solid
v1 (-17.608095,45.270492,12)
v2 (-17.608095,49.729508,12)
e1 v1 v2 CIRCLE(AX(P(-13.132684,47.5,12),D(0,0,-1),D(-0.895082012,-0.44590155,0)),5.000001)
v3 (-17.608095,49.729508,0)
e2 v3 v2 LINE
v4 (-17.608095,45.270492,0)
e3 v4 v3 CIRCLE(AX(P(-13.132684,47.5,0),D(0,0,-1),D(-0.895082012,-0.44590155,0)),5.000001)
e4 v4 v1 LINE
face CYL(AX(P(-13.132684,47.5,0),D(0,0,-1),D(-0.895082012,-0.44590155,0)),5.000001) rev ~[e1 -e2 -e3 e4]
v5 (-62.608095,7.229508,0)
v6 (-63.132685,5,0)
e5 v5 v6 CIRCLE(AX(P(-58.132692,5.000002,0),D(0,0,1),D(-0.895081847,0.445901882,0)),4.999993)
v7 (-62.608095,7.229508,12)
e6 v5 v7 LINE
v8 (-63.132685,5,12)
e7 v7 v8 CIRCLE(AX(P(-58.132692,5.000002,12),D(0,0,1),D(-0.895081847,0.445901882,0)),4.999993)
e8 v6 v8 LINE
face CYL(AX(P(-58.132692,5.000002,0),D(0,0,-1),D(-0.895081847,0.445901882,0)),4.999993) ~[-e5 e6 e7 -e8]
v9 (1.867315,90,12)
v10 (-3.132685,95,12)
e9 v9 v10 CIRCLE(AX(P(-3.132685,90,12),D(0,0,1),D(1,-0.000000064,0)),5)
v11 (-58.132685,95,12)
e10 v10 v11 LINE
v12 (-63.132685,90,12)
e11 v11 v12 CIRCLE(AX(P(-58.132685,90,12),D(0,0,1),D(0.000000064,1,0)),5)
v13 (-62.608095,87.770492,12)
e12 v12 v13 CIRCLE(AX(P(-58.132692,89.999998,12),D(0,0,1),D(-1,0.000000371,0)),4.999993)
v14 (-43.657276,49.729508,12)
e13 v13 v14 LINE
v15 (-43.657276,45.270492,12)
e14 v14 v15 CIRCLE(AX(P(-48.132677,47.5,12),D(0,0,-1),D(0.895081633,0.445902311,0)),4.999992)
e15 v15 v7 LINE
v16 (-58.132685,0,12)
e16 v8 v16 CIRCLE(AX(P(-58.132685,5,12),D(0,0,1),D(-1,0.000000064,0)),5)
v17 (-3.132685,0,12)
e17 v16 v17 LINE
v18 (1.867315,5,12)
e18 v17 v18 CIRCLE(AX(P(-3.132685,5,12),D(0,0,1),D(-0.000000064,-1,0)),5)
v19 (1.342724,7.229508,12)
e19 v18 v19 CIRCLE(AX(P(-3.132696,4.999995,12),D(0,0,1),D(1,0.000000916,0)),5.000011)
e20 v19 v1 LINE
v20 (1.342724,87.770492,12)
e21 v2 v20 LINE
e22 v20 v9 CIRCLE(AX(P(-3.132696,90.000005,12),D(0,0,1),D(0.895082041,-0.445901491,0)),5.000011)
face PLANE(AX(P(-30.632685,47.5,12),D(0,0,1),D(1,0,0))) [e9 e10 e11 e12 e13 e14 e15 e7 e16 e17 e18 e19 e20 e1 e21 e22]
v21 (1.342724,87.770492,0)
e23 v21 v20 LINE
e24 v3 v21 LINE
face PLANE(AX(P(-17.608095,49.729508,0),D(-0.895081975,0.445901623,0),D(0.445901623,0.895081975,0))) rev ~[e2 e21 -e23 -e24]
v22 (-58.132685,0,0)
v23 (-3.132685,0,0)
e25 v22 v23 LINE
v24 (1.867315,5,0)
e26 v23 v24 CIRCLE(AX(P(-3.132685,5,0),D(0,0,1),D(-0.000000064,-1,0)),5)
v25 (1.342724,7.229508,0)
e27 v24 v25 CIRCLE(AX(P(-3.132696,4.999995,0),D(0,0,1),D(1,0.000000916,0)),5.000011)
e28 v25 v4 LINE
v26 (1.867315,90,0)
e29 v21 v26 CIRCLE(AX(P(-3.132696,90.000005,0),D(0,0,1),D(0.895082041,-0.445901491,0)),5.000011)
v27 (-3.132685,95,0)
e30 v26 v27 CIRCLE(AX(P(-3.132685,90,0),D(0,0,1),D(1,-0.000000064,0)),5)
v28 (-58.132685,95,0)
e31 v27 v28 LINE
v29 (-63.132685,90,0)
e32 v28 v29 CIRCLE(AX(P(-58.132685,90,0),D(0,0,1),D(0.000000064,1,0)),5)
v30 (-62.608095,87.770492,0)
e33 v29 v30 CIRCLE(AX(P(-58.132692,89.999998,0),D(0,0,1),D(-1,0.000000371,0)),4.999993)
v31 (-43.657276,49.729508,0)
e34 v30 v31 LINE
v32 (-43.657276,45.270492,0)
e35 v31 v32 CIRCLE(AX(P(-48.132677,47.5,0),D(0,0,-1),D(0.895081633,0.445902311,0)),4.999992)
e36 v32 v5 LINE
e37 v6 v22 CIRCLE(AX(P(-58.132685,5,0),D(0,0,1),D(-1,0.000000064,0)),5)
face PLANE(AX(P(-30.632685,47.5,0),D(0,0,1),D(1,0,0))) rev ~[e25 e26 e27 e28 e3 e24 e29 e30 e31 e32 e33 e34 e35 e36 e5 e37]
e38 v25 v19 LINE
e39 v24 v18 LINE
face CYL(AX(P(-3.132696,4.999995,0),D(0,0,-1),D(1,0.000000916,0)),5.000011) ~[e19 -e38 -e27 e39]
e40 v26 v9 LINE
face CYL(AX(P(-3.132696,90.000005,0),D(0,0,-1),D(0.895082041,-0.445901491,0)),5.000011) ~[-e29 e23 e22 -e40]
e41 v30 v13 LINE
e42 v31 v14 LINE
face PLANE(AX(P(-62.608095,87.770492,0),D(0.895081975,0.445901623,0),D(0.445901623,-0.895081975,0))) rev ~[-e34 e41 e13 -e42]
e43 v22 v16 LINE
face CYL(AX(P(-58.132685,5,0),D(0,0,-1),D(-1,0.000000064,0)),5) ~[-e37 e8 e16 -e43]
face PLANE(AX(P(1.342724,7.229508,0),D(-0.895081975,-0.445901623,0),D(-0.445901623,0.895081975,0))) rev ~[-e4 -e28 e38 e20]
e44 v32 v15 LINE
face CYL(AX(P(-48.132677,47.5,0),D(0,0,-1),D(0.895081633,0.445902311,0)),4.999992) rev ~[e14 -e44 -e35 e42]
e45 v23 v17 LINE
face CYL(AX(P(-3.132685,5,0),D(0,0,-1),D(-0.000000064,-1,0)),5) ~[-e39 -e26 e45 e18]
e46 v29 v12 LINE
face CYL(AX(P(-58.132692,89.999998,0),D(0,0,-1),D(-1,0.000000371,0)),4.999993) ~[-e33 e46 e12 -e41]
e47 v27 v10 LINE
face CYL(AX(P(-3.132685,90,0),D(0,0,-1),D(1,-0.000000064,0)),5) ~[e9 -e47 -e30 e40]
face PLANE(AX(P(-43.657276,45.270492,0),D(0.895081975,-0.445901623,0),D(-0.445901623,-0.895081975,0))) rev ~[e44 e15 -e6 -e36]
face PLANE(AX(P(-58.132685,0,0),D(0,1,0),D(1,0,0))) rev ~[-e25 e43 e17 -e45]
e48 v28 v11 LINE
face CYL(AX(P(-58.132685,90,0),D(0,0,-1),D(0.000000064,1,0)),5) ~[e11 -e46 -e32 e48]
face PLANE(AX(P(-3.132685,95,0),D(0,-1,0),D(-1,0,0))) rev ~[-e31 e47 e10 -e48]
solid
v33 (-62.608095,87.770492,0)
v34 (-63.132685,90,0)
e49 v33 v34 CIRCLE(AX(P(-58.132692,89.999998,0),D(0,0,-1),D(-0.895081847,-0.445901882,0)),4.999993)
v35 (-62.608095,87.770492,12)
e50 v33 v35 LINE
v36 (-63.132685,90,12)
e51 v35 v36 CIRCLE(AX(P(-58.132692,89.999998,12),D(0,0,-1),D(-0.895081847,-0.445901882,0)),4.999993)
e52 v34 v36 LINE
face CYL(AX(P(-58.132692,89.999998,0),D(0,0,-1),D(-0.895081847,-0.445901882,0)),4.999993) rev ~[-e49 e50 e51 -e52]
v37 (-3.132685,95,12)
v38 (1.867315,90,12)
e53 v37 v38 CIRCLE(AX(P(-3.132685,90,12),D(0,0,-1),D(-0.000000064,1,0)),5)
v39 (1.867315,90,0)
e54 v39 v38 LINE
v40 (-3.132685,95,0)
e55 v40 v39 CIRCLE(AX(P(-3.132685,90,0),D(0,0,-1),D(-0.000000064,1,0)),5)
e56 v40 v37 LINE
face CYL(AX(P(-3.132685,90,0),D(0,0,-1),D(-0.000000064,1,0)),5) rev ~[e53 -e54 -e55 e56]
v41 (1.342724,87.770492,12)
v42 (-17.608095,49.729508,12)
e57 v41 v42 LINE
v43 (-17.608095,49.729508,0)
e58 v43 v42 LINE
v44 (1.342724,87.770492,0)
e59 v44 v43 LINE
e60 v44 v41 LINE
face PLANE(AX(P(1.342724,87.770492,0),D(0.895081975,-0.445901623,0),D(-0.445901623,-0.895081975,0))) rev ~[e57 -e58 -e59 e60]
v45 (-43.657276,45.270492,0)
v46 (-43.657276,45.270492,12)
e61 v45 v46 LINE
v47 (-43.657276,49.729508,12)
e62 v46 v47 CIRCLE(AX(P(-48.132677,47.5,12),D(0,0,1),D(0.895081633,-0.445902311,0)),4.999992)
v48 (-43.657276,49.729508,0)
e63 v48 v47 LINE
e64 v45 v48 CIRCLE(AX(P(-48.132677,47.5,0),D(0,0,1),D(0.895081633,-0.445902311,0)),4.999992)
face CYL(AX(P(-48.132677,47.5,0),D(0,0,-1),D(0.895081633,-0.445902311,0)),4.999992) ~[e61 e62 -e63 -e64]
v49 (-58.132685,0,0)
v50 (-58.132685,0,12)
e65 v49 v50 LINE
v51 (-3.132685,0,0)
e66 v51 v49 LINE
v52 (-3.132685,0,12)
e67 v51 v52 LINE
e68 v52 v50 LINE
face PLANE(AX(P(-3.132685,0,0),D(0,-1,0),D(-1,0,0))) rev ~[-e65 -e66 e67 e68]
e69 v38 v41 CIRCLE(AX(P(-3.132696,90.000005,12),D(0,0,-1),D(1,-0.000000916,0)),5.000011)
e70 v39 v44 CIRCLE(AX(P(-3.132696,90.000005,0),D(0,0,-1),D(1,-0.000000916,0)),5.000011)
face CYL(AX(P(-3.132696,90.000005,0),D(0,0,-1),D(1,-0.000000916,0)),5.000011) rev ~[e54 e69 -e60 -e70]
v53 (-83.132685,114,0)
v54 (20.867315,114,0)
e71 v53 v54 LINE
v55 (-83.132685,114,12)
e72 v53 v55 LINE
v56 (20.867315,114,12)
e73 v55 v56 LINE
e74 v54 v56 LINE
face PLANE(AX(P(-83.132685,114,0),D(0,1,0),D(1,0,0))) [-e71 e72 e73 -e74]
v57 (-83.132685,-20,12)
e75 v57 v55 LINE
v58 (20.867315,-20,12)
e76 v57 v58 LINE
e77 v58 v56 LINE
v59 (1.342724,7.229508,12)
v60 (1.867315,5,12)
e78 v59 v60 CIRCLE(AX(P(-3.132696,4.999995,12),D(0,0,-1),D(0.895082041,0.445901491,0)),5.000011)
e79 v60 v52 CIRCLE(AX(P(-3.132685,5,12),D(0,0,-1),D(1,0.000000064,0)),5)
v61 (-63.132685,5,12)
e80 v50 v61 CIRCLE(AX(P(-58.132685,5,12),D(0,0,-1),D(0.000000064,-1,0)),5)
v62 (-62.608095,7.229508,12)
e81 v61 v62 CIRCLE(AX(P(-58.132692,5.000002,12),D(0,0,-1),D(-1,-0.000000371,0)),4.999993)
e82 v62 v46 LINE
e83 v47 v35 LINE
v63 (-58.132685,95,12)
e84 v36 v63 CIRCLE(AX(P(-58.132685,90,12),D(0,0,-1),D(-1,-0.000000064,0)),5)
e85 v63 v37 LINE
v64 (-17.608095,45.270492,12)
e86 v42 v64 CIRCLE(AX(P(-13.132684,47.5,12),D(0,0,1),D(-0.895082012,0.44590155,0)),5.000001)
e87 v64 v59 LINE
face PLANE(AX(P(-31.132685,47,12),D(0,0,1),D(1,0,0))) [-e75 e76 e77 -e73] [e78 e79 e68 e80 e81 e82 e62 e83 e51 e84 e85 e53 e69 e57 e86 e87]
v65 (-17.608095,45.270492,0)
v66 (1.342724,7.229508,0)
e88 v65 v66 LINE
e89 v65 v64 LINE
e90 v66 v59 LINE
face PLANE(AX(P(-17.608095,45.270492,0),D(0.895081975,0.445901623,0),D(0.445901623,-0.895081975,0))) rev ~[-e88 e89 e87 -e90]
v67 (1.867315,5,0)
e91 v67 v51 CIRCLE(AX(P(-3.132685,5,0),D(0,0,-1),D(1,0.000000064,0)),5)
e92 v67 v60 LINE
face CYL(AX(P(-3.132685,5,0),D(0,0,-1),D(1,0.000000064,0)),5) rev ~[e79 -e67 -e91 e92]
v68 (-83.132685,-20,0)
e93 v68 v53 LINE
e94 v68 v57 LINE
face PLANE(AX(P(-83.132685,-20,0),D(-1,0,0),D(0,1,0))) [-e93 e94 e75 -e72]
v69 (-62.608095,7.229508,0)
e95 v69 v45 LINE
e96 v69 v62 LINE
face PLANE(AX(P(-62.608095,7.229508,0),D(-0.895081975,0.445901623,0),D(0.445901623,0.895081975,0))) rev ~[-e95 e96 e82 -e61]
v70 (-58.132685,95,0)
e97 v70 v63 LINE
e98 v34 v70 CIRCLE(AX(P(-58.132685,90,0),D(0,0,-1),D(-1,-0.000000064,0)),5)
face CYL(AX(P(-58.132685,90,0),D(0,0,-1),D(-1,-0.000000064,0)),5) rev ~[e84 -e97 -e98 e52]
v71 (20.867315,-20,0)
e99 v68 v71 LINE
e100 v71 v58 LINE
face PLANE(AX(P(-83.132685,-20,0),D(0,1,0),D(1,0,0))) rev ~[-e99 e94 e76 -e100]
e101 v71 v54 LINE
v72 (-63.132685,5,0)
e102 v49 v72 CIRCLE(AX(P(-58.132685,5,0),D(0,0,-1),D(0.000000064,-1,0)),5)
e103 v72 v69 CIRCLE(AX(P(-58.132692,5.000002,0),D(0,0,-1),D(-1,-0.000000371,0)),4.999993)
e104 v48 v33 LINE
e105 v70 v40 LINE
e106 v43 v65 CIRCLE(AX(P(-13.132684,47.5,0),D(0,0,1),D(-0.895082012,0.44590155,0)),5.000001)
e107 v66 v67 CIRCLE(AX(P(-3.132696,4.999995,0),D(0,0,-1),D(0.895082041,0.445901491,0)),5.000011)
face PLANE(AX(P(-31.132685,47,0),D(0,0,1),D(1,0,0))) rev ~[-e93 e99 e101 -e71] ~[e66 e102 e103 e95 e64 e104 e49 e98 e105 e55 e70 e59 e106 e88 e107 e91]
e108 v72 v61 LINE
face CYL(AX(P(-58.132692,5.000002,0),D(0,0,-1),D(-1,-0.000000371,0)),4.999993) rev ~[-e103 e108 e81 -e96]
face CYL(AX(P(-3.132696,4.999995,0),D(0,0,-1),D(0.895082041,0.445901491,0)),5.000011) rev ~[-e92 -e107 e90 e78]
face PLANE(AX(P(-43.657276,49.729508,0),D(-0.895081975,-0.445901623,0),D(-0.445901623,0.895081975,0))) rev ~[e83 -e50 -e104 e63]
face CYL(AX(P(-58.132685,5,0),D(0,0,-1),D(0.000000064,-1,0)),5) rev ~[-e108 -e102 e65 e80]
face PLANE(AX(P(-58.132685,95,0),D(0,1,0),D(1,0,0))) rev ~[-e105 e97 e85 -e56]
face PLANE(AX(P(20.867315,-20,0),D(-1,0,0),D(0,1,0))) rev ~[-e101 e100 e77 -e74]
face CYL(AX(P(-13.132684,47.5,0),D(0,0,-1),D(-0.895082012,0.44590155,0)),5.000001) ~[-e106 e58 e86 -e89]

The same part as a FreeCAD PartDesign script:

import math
import FreeCAD as App
import Part
import Sketcher

V = App.Vector
Q = App.Units.Quantity


def add_polygon(sketch, points):
    """Adds a closed chain of lines whose ends are joined by coincident constraints."""
    first, n = sketch.GeometryCount, len(points)
    for a, b in zip(points, points[1:] + points[:1]):
        sketch.addGeometry(Part.LineSegment(App.Vector(*a, 0), App.Vector(*b, 0)), False)
    for i in range(n):
        sketch.addConstraint(Sketcher.Constraint("Coincident", first + i, 2, first + (i + 1) % n, 1))

doc = App.newDocument("Part")
params = doc.addObject("Spreadsheet::Sheet", "Params")
for row, (alias, value) in enumerate([
    ("sketch1_radius", "5 mm"),
    ("sketch1_width", "55 mm"),
    ("pad1_length", "12 mm"),
    ("sketch2_radius", "5 mm"),
    ("sketch2_width", "104 mm"),
    ("sketch2_width2", "55 mm"),
    ("sketch2_height", "134 mm"),
    ("pad2_length", "12 mm"),
], start=1):
    params.set(f"A{row}", alias)
    params.set(f"B{row}", "=" + value)
    params.setAlias(f"B{row}", alias)

body = doc.addObject("PartDesign::Body", "Body")

# Sketch on XY plane
sketch1 = body.newObject("Sketcher::SketchObject", "Sketch")
sketch1.AttachmentSupport = (doc.getObject("XY_Plane"), [""])
sketch1.MapMode = "FlatFace"
sketch1.addGeometry([
    Part.LineSegment(V(-58.1, 0, 0), V(-3.1, 0, 0)),  # 0
    Part.ArcOfCircle(Part.Circle(V(-3.1, 5, 0), V(0, 0, 1), 5), math.radians(-90), math.radians(0)),  # 1
    Part.ArcOfCircle(Part.Circle(V(-3.1, 5, 0), V(0, 0, 1), 5), math.radians(0), math.radians(26)),  # 2
    Part.LineSegment(V(1.3, 7.2, 0), V(-17.6, 45.3, 0)),  # 3
    Part.ArcOfCircle(Part.Circle(V(-13.1, 47.5, 0), V(0, 0, 1), 5), math.radians(154), math.radians(206)),  # 4
    Part.LineSegment(V(-17.6, 49.7, 0), V(1.3, 87.8, 0)),  # 5
    Part.ArcOfCircle(Part.Circle(V(-3.1, 90, 0), V(0, 0, 1), 5), math.radians(-26), math.radians(0)),  # 6
    Part.ArcOfCircle(Part.Circle(V(-3.1, 90, 0), V(0, 0, 1), 5), math.radians(0), math.radians(90)),  # 7
    Part.LineSegment(V(-3.1, 95, 0), V(-58.1, 95, 0)),  # 8
    Part.ArcOfCircle(Part.Circle(V(-58.1, 90, 0), V(0, 0, 1), 5), math.radians(90), math.radians(180)),  # 9
    Part.ArcOfCircle(Part.Circle(V(-58.1, 90, 0), V(0, 0, 1), 5), math.radians(180), math.radians(206)),  # 10
    Part.LineSegment(V(-62.6, 87.8, 0), V(-43.7, 49.7, 0)),  # 11
    Part.ArcOfCircle(Part.Circle(V(-48.1, 47.5, 0), V(0, 0, 1), 5), math.radians(-26), math.radians(26)),  # 12
    Part.LineSegment(V(-43.7, 45.3, 0), V(-62.6, 7.2, 0)),  # 13
    Part.ArcOfCircle(Part.Circle(V(-58.1, 5, 0), V(0, 0, 1), 5), math.radians(154), math.radians(180)),  # 14
    Part.ArcOfCircle(Part.Circle(V(-58.1, 5, 0), V(0, 0, 1), 5), math.radians(180), math.radians(270)),  # 15
], False)
sketch1.addConstraint([
    Sketcher.Constraint("Tangent", 0, 2, 1, 1),
    Sketcher.Constraint("Tangent", 1, 2, 2, 1),
    Sketcher.Constraint("Tangent", 2, 2, 3, 1),
    Sketcher.Constraint("Tangent", 3, 2, 4, 2),
    Sketcher.Constraint("Tangent", 4, 1, 5, 1),
    Sketcher.Constraint("Tangent", 5, 2, 6, 1),
    Sketcher.Constraint("Tangent", 6, 2, 7, 1),
    Sketcher.Constraint("Tangent", 7, 2, 8, 1),
    Sketcher.Constraint("Tangent", 8, 2, 9, 1),
    Sketcher.Constraint("Tangent", 9, 2, 10, 1),
    Sketcher.Constraint("Tangent", 10, 2, 11, 1),
    Sketcher.Constraint("Tangent", 11, 2, 12, 2),
    Sketcher.Constraint("Tangent", 12, 1, 13, 1),
    Sketcher.Constraint("Tangent", 13, 2, 14, 1),
    Sketcher.Constraint("Tangent", 14, 2, 15, 1),
    Sketcher.Constraint("Tangent", 15, 2, 0, 1),
    Sketcher.Constraint("Horizontal", 0),
    Sketcher.Constraint("Horizontal", 8),
    Sketcher.Constraint("Equal", 1, 4),
    Sketcher.Constraint("Equal", 2, 6),
    Sketcher.Constraint("Equal", 4, 7),
    Sketcher.Constraint("Equal", 7, 9),
    Sketcher.Constraint("Equal", 10, 12),
    Sketcher.Constraint("Equal", 12, 14),
    Sketcher.Constraint("Equal", 9, 15),
    Sketcher.Constraint("PointOnObject", 0, 2, -1),
    Sketcher.Constraint("Parallel", 3, 11),
    Sketcher.Constraint("Parallel", 5, 13),
    Sketcher.Constraint("Horizontal", 4, 3, 12, 3),
    Sketcher.Constraint("Horizontal", 15, 3, 1, 2),
    Sketcher.Constraint("Horizontal", 10, 3, 6, 2),
    Sketcher.Constraint("Horizontal", 6, 2, 9, 2),
    Sketcher.Constraint("Horizontal", 5, 2, 10, 2),
    Sketcher.Constraint("Horizontal", 4, 1, 11, 2),
    Sketcher.Constraint("Horizontal", 3, 2, 12, 1),
    Sketcher.Constraint("Horizontal", 1, 2, 14, 2),
    Sketcher.Constraint("Vertical", 2, 3, 6, 3),
    Sketcher.Constraint("Radius", 1, Q("5 mm")),
    Sketcher.Constraint("DistanceX", 0, 1, 0, 2, Q("55 mm")),
    Sketcher.Constraint("DistanceY", -1, 1, 7, 3, Q("90 mm")),
    Sketcher.Constraint("DistanceX", 4, 3, 1, 3, Q("10 mm")),
    Sketcher.Constraint("DistanceX", 1, 3, -1, 1, Q("3.132685 mm")),
])
sketch1.setExpression("Constraints[37]", "Params.sketch1_radius")
sketch1.setExpression("Constraints[38]", "Params.sketch1_width")
pad1 = body.newObject("PartDesign::Pad", "Pad")
pad1.Profile = sketch1
pad1.setExpression("Length", "Params.pad1_length")
body2 = doc.addObject("PartDesign::Body", "Body001")

# Sketch on XY plane
sketch2 = body2.newObject("Sketcher::SketchObject", "Sketch001")
sketch2.AttachmentSupport = (doc.getObject("XY_Plane001"), [""])
sketch2.MapMode = "FlatFace"
add_polygon(sketch2, [(-83.1, 114), (-83.1, -20), (20.9, -20), (20.9, 114)])  # lines 0-3
sketch2.addGeometry(Part.ArcOfCircle(Part.Circle(V(-3.1, 5, 0), V(0, 0, 1), 5), math.radians(-90), math.radians(0)), False)  # 4
sketch2.addGeometry(Part.LineSegment(V(-3.1, 0, 0), V(-58.1, 0, 0)), False)  # 5
sketch2.addGeometry(Part.ArcOfCircle(Part.Circle(V(-58.1, 5, 0), V(0, 0, 1), 5), math.radians(180), math.radians(270)), False)  # 6
sketch2.addGeometry(Part.ArcOfCircle(Part.Circle(V(-58.1, 5, 0), V(0, 0, 1), 5), math.radians(154), math.radians(180)), False)  # 7
sketch2.addGeometry(Part.LineSegment(V(-62.6, 7.2, 0), V(-43.7, 45.3, 0)), False)  # 8
sketch2.addGeometry(Part.ArcOfCircle(Part.Circle(V(-48.1, 47.5, 0), V(0, 0, 1), 5), math.radians(-26), math.radians(26)), False)  # 9
sketch2.addGeometry(Part.LineSegment(V(-43.7, 49.7, 0), V(-62.6, 87.8, 0)), False)  # 10
sketch2.addGeometry(Part.ArcOfCircle(Part.Circle(V(-58.1, 90, 0), V(0, 0, 1), 5), math.radians(180), math.radians(206)), False)  # 11
sketch2.addGeometry(Part.ArcOfCircle(Part.Circle(V(-58.1, 90, 0), V(0, 0, 1), 5), math.radians(90), math.radians(180)), False)  # 12
sketch2.addGeometry(Part.LineSegment(V(-58.1, 95, 0), V(-3.1, 95, 0)), False)  # 13
sketch2.addGeometry(Part.ArcOfCircle(Part.Circle(V(-3.1, 90, 0), V(0, 0, 1), 5), math.radians(0), math.radians(90)), False)  # 14
sketch2.addGeometry(Part.ArcOfCircle(Part.Circle(V(-3.1, 90, 0), V(0, 0, 1), 5), math.radians(-26), math.radians(0)), False)  # 15
sketch2.addGeometry(Part.LineSegment(V(1.3, 87.8, 0), V(-17.6, 49.7, 0)), False)  # 16
sketch2.addGeometry(Part.ArcOfCircle(Part.Circle(V(-13.1, 47.5, 0), V(0, 0, 1), 5), math.radians(154), math.radians(206)), False)  # 17
sketch2.addGeometry(Part.LineSegment(V(-17.6, 45.3, 0), V(1.3, 7.2, 0)), False)  # 18
sketch2.addGeometry(Part.ArcOfCircle(Part.Circle(V(-3.1, 5, 0), V(0, 0, 1), 5), math.radians(0), math.radians(26)), False)  # 19
sketch2.addConstraint([
    Sketcher.Constraint("Tangent", 4, 1, 5, 1),
    Sketcher.Constraint("Tangent", 5, 2, 6, 2),
    Sketcher.Constraint("Tangent", 6, 1, 7, 2),
    Sketcher.Constraint("Tangent", 7, 1, 8, 1),
    Sketcher.Constraint("Tangent", 8, 2, 9, 1),
    Sketcher.Constraint("Tangent", 9, 2, 10, 1),
    Sketcher.Constraint("Tangent", 10, 2, 11, 2),
    Sketcher.Constraint("Tangent", 11, 1, 12, 2),
    Sketcher.Constraint("Tangent", 12, 1, 13, 1),
    Sketcher.Constraint("Tangent", 13, 2, 14, 2),
    Sketcher.Constraint("Tangent", 14, 1, 15, 2),
    Sketcher.Constraint("Tangent", 15, 1, 16, 1),
    Sketcher.Constraint("Tangent", 16, 2, 17, 1),
    Sketcher.Constraint("Tangent", 17, 2, 18, 1),
    Sketcher.Constraint("Tangent", 18, 2, 19, 2),
    Sketcher.Constraint("Tangent", 19, 1, 4, 2),
    Sketcher.Constraint("Vertical", 0),
    Sketcher.Constraint("Horizontal", 1),
    Sketcher.Constraint("Vertical", 2),
    Sketcher.Constraint("Horizontal", 3),
    Sketcher.Constraint("Horizontal", 5),
    Sketcher.Constraint("Horizontal", 13),
    Sketcher.Constraint("Equal", 4, 6),
    Sketcher.Constraint("Equal", 7, 9),
    Sketcher.Constraint("Equal", 9, 11),
    Sketcher.Constraint("Equal", 6, 12),
    Sketcher.Constraint("Equal", 12, 14),
    Sketcher.Constraint("Equal", 14, 17),
    Sketcher.Constraint("Equal", 15, 19),
    Sketcher.Constraint("PointOnObject", 4, 1, -1),
    Sketcher.Constraint("Parallel", 8, 16),
    Sketcher.Constraint("Parallel", 10, 18),
    Sketcher.Constraint("Horizontal", 9, 3, 17, 3),
    Sketcher.Constraint("Horizontal", 7, 3, 6, 1),
    Sketcher.Constraint("Horizontal", 14, 3, 11, 1),
    Sketcher.Constraint("Horizontal", 11, 1, 14, 1),
    Sketcher.Constraint("Horizontal", 10, 2, 15, 1),
    Sketcher.Constraint("Horizontal", 9, 2, 16, 2),
    Sketcher.Constraint("Horizontal", 8, 2, 17, 2),
    Sketcher.Constraint("Horizontal", 6, 1, 19, 1),
    Sketcher.Constraint("Vertical", 7, 3, 11, 3),
    Sketcher.Constraint("Radius", 4, Q("5 mm")),
    Sketcher.Constraint("DistanceX", 1, 1, 1, 2, Q("104 mm")),
    Sketcher.Constraint("DistanceX", 5, 2, 5, 1, Q("55 mm")),
    Sketcher.Constraint("DistanceY", 0, 2, 0, 1, Q("134 mm")),
    Sketcher.Constraint("DistanceY", -1, 1, 11, 3, Q("89.999998 mm")),
    Sketcher.Constraint("DistanceY", 0, 2, -1, 1, Q("20 mm")),
    Sketcher.Constraint("DistanceX", 17, 3, 4, 3, Q("10 mm")),
    Sketcher.Constraint("DistanceX", 0, 2, 6, 3, Q("25 mm")),
    Sketcher.Constraint("DistanceX", 4, 3, -1, 1, Q("3.132685 mm")),
])
sketch2.setExpression("Constraints[45]", "Params.sketch2_radius")
sketch2.setExpression("Constraints[46]", "Params.sketch2_width")
sketch2.setExpression("Constraints[47]", "Params.sketch2_width2")
sketch2.setExpression("Constraints[48]", "Params.sketch2_height")
pad2 = body2.newObject("PartDesign::Pad", "Pad001")
pad2.Profile = sketch2
pad2.setExpression("Length", "Params.pad2_length")

doc.recompute()
